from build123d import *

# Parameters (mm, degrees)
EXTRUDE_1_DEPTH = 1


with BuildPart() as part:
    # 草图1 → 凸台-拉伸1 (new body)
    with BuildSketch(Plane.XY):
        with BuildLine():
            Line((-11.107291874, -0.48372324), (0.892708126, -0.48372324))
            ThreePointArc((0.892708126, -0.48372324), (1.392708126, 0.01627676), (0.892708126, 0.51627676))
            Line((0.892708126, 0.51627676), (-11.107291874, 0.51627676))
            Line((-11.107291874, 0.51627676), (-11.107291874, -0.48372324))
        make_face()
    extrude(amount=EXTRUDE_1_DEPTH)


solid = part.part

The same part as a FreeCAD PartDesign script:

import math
import FreeCAD as App
import Part
import Sketcher

V = App.Vector

doc = App.newDocument("Part")
body = doc.addObject("PartDesign::Body", "Body")

sketch1 = doc.addObject("Sketcher::SketchObject", "Sketch")
body.addObject(sketch1)
sketch1.AttachmentSupport = (doc.XY_Plane, [""])
sketch1.MapMode = "FlatFace"
sketch1.addGeometry([
    Part.LineSegment(V(-11.107292, -0.483723, 0), V(0.892708, -0.483723, 0)),
    Part.ArcOfCircle(Part.Circle(V(0.892708, 0.016277, 0), V(0, 0, 1), 0.5), math.radians(-90), math.radians(90)),
    Part.LineSegment(V(0.892708, 0.516277, 0), V(-11.107292, 0.516277, 0)),
    Part.LineSegment(V(-11.107292, 0.516277, 0), V(-11.107292, -0.483723, 0)),
], False)
sketch1.addConstraint([
    Sketcher.Constraint("Tangent", 0, 2, 1, 1),
    Sketcher.Constraint("Tangent", 1, 2, 2, 1),
    Sketcher.Constraint("Coincident", 2, 2, 3, 1),
    Sketcher.Constraint("Coincident", 3, 2, 0, 1),
    Sketcher.Constraint("Horizontal", 0),
    Sketcher.Constraint("Horizontal", 2),
    Sketcher.Constraint("Vertical", 3),
    Sketcher.Constraint("Radius", 1, 0.5),
    Sketcher.Constraint("DistanceX", 0, 1, 0, 2, 12.0),
    Sketcher.Constraint("DistanceX", -1, 1, 1, 3, 0.892708),
    Sketcher.Constraint("DistanceY", -1, 1, 1, 3, 0.016277),
])
pad1 = doc.addObject("PartDesign::Pad", "Pad")
body.addObject(pad1)
pad1.Profile = sketch1
pad1.Length = 1

doc.recompute()
